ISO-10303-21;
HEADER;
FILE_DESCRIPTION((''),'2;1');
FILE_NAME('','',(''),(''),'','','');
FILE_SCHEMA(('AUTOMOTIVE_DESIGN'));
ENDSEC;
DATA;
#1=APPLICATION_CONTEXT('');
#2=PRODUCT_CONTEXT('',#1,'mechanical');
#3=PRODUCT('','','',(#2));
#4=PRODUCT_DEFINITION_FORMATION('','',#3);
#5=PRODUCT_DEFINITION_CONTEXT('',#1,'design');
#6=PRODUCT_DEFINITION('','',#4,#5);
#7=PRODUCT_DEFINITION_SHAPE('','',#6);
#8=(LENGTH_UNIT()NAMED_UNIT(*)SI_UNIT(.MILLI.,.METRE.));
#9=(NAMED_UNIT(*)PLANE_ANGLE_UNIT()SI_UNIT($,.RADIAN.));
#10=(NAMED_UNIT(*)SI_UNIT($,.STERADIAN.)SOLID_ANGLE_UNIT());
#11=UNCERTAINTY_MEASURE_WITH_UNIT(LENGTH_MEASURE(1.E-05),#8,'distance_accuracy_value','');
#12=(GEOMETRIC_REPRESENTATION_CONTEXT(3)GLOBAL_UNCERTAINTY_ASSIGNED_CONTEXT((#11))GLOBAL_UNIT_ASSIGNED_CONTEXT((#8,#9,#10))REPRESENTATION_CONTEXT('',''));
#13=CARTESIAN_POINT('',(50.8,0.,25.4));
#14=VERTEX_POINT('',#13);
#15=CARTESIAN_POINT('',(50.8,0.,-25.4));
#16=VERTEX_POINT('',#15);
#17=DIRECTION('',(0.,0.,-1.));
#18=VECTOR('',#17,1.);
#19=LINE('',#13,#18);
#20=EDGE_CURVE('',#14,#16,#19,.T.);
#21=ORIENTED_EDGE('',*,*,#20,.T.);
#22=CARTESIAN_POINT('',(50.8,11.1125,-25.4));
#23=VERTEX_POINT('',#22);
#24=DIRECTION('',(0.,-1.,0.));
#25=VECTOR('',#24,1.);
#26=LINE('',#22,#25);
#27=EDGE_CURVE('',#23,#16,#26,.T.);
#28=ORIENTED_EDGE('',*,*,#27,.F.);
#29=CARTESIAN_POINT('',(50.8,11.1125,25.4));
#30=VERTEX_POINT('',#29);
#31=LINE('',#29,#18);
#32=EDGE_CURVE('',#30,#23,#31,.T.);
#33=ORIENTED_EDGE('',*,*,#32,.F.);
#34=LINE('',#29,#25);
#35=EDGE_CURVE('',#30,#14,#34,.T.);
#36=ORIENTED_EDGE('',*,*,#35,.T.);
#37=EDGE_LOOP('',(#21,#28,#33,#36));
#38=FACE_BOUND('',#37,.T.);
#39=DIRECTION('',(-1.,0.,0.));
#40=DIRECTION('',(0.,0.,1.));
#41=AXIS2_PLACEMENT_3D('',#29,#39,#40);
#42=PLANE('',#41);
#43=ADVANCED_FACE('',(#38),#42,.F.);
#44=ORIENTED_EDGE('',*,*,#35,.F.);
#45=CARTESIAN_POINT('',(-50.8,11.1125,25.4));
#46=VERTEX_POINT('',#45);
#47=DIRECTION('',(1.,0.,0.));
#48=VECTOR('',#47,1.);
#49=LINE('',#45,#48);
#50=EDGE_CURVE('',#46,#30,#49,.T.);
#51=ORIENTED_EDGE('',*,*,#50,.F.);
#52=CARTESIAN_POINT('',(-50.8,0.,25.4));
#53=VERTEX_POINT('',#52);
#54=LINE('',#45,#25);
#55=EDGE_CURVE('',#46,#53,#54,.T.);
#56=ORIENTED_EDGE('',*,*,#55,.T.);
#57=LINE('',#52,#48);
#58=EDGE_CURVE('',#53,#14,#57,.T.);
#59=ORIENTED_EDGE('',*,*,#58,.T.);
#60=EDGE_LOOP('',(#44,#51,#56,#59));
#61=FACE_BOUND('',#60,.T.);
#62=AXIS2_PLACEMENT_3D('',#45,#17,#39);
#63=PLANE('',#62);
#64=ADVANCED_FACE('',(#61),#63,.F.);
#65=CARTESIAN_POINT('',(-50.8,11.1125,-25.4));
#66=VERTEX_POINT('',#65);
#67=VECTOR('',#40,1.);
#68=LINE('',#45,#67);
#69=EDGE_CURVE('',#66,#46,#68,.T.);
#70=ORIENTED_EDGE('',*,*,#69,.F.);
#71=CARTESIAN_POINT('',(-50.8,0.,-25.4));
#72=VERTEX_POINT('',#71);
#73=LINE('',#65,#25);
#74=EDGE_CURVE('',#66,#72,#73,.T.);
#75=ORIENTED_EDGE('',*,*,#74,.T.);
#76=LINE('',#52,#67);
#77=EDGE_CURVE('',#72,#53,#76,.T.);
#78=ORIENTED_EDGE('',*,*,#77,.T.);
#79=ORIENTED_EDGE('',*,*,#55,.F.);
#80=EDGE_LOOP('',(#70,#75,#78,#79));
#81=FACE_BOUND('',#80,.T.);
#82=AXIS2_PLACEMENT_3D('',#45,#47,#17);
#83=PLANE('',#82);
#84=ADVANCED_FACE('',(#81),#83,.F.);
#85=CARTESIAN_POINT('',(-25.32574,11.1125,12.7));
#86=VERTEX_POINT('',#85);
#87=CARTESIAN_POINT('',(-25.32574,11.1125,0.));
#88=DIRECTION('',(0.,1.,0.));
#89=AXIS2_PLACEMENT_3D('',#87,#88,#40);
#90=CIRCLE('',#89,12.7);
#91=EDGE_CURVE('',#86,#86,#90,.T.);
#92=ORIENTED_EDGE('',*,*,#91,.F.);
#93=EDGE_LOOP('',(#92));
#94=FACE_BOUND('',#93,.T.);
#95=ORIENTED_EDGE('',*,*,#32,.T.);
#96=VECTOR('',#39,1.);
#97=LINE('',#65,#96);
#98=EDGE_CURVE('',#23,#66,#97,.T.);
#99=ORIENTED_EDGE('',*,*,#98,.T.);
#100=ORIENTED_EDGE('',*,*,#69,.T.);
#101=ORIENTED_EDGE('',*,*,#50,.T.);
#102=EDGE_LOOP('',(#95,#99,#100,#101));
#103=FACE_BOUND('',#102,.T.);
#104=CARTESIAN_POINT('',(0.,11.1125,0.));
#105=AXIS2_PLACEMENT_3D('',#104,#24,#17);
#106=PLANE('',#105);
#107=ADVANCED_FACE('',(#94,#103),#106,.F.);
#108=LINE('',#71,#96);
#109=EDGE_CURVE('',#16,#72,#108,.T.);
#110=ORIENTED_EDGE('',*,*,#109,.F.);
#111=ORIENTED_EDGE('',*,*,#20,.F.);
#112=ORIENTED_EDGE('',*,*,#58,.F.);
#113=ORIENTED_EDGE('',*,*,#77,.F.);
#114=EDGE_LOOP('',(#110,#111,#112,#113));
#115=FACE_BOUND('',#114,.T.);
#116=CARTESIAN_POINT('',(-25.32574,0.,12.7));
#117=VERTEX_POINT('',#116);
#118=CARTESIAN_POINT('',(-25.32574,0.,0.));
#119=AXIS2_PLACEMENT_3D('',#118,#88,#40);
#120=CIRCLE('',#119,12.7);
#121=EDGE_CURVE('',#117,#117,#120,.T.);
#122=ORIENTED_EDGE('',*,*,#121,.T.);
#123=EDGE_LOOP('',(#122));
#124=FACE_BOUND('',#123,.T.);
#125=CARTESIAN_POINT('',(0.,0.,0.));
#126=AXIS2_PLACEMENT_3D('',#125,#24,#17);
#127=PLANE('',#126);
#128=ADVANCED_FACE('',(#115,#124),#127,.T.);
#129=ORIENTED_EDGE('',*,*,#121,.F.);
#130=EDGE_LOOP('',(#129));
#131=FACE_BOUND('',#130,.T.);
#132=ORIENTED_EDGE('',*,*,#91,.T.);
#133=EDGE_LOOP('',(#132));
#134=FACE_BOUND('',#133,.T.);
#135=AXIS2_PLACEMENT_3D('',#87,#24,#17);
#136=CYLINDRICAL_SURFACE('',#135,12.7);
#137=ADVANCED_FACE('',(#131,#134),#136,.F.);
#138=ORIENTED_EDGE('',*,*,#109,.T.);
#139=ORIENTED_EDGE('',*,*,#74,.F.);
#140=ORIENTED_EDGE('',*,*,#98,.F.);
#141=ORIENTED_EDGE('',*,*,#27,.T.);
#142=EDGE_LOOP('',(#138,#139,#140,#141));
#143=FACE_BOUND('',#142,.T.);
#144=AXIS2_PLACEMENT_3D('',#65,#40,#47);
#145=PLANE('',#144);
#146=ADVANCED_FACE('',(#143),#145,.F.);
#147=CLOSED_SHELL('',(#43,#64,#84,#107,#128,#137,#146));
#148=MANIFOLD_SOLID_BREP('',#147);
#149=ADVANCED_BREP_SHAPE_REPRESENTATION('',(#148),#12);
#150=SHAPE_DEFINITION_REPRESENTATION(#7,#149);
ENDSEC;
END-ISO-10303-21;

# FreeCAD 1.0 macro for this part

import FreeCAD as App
import Part
import Sketcher
Q = App.Units.Quantity


def add_polygon(sketch, points):
    """Adds a closed chain of lines whose ends are joined by coincident constraints."""
    first, n = sketch.GeometryCount, len(points)
    for a, b in zip(points, points[1:] + points[:1]):
        sketch.addGeometry(Part.LineSegment(App.Vector(*a, 0), App.Vector(*b, 0)), False)
    for i in range(n):
        sketch.addConstraint(Sketcher.Constraint("Coincident", first + i, 2, first + (i + 1) % n, 1))

doc = App.newDocument("Part")
params = doc.addObject("Spreadsheet::Sheet", "Params")
for row, (alias, value) in enumerate([
    ("sketch1_diameter", "1 in"),
    ("sketch1_width", "4 in"),
    ("sketch1_height", "2 in"),
    ("pad1_length", "0.4375 in"),
], start=1):
    params.set(f"A{row}", alias)
    params.set(f"B{row}", "=" + value)
    params.setAlias(f"B{row}", alias)

body = doc.addObject("PartDesign::Body", "Body")

# Sketch on XZ plane
sketch1 = body.newObject("Sketcher::SketchObject", "Sketch")
sketch1.AttachmentSupport = (doc.getObject("XZ_Plane"), [""])
sketch1.MapMode = "FlatFace"
add_polygon(sketch1, [(-50.8, -25.4), (-50.8, 25.4), (50.8, 25.4), (50.8, -25.4)])  # lines 0-3
sketch1.addGeometry(Part.Circle(App.Vector(-25.32574, 0, 0), App.Vector(0, 0, 1), 12.7), False)  # 4
sketch1.addConstraint(Sketcher.Constraint("Vertical", 0))
sketch1.addConstraint(Sketcher.Constraint("Horizontal", 1))
sketch1.addConstraint(Sketcher.Constraint("Vertical", 2))
sketch1.addConstraint(Sketcher.Constraint("Horizontal", 3))
sketch1.addConstraint(Sketcher.Constraint("Symmetric", 0, 2, 2, 2, -1, 1))
sketch1.addConstraint(Sketcher.Constraint("PointOnObject", 4, 3, -1))
sketch1.addConstraint(Sketcher.Constraint("Diameter", 4, Q("1 in")))
sketch1.addConstraint(Sketcher.Constraint("DistanceX", 1, 1, 1, 2, Q("4 in")))
sketch1.addConstraint(Sketcher.Constraint("DistanceY", 0, 1, 0, 2, Q("2 in")))
sketch1.addConstraint(Sketcher.Constraint("DistanceX", 4, 3, -1, 1, 25.32574))
sketch1.setExpression("Constraints[10]", "Params.sketch1_diameter")
sketch1.setExpression("Constraints[11]", "Params.sketch1_width")
sketch1.setExpression("Constraints[12]", "Params.sketch1_height")
pad1 = body.newObject("PartDesign::Pad", "Pad")
pad1.Profile = sketch1
pad1.setExpression("Length", "Params.pad1_length")
pad1.Reversed = True

doc.recompute()
